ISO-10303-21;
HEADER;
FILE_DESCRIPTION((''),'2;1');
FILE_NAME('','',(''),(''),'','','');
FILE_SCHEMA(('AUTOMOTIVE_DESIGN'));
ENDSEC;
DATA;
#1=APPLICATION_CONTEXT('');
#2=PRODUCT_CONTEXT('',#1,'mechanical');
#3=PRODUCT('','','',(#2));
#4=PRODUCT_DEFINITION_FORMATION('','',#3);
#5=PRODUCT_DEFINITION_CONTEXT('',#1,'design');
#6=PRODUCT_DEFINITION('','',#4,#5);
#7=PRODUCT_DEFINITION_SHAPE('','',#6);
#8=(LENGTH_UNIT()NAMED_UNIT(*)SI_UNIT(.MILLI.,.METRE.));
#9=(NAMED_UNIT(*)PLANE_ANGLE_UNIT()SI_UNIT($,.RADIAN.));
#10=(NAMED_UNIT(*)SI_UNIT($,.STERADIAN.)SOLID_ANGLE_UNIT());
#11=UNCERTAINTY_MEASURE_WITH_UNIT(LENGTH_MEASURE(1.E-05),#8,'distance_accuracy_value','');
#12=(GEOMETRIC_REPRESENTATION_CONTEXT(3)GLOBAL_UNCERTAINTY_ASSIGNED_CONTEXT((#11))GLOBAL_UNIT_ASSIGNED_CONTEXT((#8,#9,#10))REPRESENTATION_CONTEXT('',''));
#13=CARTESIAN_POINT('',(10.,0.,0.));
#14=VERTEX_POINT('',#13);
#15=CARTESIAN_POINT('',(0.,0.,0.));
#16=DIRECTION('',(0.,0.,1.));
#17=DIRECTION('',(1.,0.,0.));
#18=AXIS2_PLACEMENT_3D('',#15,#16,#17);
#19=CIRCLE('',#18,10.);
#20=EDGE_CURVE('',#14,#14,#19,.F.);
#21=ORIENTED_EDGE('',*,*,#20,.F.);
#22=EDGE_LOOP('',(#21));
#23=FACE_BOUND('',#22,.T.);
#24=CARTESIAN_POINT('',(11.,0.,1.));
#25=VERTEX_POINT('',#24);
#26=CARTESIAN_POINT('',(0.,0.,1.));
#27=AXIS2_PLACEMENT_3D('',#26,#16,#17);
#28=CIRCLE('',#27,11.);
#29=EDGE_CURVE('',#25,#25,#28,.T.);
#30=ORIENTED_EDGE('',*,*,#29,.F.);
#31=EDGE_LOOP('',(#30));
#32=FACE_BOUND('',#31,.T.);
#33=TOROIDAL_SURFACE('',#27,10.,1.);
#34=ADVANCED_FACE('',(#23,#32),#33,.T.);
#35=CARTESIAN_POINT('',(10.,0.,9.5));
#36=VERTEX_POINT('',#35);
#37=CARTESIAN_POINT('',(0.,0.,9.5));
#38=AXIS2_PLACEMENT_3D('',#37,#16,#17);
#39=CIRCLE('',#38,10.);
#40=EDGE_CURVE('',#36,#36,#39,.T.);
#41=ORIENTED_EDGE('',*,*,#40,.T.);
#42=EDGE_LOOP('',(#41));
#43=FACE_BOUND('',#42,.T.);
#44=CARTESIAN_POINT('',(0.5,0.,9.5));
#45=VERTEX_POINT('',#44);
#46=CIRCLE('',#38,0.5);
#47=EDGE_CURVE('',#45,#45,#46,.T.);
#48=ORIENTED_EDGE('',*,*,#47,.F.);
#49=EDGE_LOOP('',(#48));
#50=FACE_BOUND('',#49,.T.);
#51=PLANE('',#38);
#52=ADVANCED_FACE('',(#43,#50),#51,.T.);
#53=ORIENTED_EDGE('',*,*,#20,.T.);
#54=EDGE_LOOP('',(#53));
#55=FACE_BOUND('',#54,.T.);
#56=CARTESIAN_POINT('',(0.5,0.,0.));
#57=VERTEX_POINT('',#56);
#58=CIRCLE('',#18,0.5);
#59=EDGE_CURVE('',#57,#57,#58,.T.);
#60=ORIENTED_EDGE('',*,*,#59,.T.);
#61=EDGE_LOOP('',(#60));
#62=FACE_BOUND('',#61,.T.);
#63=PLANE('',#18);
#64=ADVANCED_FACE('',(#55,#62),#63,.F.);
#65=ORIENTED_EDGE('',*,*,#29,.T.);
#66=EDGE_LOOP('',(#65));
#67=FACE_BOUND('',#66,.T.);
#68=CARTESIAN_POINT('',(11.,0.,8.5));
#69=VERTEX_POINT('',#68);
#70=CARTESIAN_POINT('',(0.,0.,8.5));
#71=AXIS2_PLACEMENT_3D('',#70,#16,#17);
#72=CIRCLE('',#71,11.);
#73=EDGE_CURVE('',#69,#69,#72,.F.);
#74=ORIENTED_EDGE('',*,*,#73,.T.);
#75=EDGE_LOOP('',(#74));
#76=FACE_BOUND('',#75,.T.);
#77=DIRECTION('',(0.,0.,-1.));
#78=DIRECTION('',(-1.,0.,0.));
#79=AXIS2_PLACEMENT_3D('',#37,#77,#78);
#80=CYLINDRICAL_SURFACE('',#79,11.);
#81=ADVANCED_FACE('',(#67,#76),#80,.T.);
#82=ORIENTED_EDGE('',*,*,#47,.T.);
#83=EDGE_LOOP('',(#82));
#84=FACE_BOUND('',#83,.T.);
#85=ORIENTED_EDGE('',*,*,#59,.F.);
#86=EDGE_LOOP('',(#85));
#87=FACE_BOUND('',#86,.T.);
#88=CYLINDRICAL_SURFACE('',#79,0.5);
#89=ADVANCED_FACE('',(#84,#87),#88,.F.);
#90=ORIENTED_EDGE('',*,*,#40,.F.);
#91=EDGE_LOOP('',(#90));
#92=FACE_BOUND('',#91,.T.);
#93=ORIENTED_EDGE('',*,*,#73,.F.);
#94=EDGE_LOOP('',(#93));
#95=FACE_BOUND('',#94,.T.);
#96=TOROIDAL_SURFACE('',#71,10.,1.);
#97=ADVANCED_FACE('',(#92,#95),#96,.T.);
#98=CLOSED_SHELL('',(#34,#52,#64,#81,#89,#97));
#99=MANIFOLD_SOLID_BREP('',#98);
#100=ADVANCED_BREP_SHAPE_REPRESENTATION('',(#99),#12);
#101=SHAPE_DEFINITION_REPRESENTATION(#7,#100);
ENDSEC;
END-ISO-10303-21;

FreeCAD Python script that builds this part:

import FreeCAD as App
import Part
import Sketcher
from FreeCAD import Vector


def edges_at(feature, points):
    """Names of the edges that pass closest to the given points."""
    edges = feature.Shape.Edges
    near = lambda p: min(range(len(edges)), key=lambda i: edges[i].distToShape(Part.Vertex(*p))[0])
    return sorted({f"Edge{near(p) + 1}" for p in points})

doc = App.newDocument("Part")
params = doc.addObject("Spreadsheet::Sheet", "Params")
for row, (alias, value) in enumerate([
    ("sketch1_diameter", "22 mm"),
    ("sketch1_diameter2", "1 mm"),
    ("pad1_length", "9.5 mm"),
    ("fillet_radius", "1 mm"),
], start=1):
    params.set(f"A{row}", alias)
    params.set(f"B{row}", "=" + value)
    params.setAlias(f"B{row}", alias)

body = doc.addObject("PartDesign::Body", "Body")

sketch1 = body.newObject("Sketcher::SketchObject", "Sketch")
sketch1.AttachmentSupport = (doc.getObject("XY_Plane"), [""])
sketch1.MapMode = "FlatFace"
sketch1.addGeometry(Part.Circle(Vector(0, 0, 0), Vector(0, 0, 1), 11), False)
sketch1.addGeometry(Part.Circle(Vector(0, 0, 0), Vector(0, 0, 1), 0.5), False)
sketch1.addConstraint(Sketcher.Constraint("Coincident", 0, 3, -1, 1))
sketch1.addConstraint(Sketcher.Constraint("Coincident", 1, 3, -1, 1))
sketch1.addConstraint(Sketcher.Constraint("Diameter", 0, 22.0))
sketch1.addConstraint(Sketcher.Constraint("Diameter", 1, 1.0))
sketch1.setExpression("Constraints[2]", "Params.sketch1_diameter")
sketch1.setExpression("Constraints[3]", "Params.sketch1_diameter2")
pad1 = body.newObject("PartDesign::Pad", "Pad")
pad1.Profile = sketch1
pad1.setExpression("Length", "Params.pad1_length")
doc.recompute()

fillet = body.newObject("PartDesign::Fillet", "Fillet")
fillet.Base = (pad1, edges_at(pad1, [(-11, 0, 0), (-11, 0, 9.5)]))
fillet.setExpression("Radius", "Params.fillet_radius")

doc.recompute()
